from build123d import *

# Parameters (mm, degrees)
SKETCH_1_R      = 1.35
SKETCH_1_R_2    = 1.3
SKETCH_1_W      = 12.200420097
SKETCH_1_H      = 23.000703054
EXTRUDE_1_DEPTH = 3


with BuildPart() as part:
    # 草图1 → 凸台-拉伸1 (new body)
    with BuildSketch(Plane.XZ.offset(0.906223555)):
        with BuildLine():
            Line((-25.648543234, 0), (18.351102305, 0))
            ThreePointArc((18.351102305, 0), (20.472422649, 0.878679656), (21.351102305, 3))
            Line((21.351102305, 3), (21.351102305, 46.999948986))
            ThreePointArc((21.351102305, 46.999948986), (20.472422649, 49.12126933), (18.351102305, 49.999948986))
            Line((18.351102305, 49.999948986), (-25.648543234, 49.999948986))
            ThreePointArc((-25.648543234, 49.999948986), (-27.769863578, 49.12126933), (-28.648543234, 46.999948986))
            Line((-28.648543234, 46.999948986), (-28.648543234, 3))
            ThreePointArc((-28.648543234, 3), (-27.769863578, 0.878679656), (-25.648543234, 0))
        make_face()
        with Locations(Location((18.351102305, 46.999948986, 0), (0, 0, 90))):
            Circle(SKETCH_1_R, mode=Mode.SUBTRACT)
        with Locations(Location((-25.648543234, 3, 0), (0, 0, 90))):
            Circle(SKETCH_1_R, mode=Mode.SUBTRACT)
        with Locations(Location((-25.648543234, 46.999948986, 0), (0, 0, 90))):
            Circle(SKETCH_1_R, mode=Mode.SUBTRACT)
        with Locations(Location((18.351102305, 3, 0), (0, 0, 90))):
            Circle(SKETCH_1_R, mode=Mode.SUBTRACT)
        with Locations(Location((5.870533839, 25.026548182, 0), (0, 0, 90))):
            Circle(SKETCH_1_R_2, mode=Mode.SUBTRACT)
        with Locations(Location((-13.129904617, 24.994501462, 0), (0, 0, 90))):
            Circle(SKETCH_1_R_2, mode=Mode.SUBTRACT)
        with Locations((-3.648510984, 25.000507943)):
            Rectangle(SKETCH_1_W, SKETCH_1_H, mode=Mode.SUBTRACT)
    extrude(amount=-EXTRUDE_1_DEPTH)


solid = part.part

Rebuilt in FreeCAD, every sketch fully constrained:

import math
import FreeCAD as App
import Part
import Sketcher

V = App.Vector
Q = App.Units.Quantity


def add_polygon(sketch, points):
    """Adds a closed chain of lines whose ends are joined by coincident constraints."""
    first, n = sketch.GeometryCount, len(points)
    for a, b in zip(points, points[1:] + points[:1]):
        sketch.addGeometry(Part.LineSegment(App.Vector(*a, 0), App.Vector(*b, 0)), False)
    for i in range(n):
        sketch.addConstraint(Sketcher.Constraint("Coincident", first + i, 2, first + (i + 1) % n, 1))

doc = App.newDocument("Part")
params = doc.addObject("Spreadsheet::Sheet", "Params")
for row, (alias, value) in enumerate([
    ("sketch1_radius", "3 mm"),
    ("sketch1_diameter", "2.7 mm"),
    ("sketch1_diameter2", "2.6 mm"),
    ("pad1_length", "3 mm"),
], start=1):
    params.set(f"A{row}", alias)
    params.set(f"B{row}", "=" + value)
    params.setAlias(f"B{row}", alias)

body = doc.addObject("PartDesign::Body", "Body")

sketch1 = body.newObject("Sketcher::SketchObject", "Sketch")
sketch1.AttachmentSupport = (doc.getObject("XZ_Plane"), [""])
sketch1.MapMode = "FlatFace"
sketch1.AttachmentOffset = App.Placement(V(0, 0, 0.906224), App.Rotation())
sketch1.addGeometry(Part.LineSegment(V(-25.648543, 0, 0), V(18.351102, 0, 0)), False)
sketch1.addGeometry(Part.ArcOfCircle(Part.Circle(V(18.351102, 3, 0), V(0, 0, 1), 3), math.radians(-90), math.radians(0)), False)
sketch1.addGeometry(Part.LineSegment(V(21.351102, 3, 0), V(21.351102, 46.999949, 0)), False)
sketch1.addGeometry(Part.ArcOfCircle(Part.Circle(V(18.351102, 46.999949, 0), V(0, 0, 1), 3), math.radians(0), math.radians(90)), False)
sketch1.addGeometry(Part.LineSegment(V(18.351102, 49.999949, 0), V(-25.648543, 49.999949, 0)), False)
sketch1.addGeometry(Part.ArcOfCircle(Part.Circle(V(-25.648543, 46.999949, 0), V(0, 0, 1), 3), math.radians(90), math.radians(180)), False)
sketch1.addGeometry(Part.LineSegment(V(-28.648543, 46.999949, 0), V(-28.648543, 3, 0)), False)
sketch1.addGeometry(Part.ArcOfCircle(Part.Circle(V(-25.648543, 3, 0), V(0, 0, 1), 3), math.radians(180), math.radians(270)), False)
sketch1.addGeometry(Part.Circle(V(-25.648543, 3, 0), V(0, 0, 1), 1.35), False)
sketch1.addGeometry(Part.Circle(V(-13.129905, 24.994501, 0), V(0, 0, 1), 1.3), False)
sketch1.addGeometry(Part.Circle(V(18.351102, 3, 0), V(0, 0, 1), 1.35), False)
sketch1.addGeometry(Part.Circle(V(-25.648543, 46.999949, 0), V(0, 0, 1), 1.35), False)
add_polygon(sketch1, [(2.451699, 13.500156), (-9.748721, 13.500156), (-9.748721, 36.500859), (2.451699, 36.500859)])
sketch1.addGeometry(Part.Circle(V(5.870534, 25.026548, 0), V(0, 0, 1), 1.3), False)
sketch1.addGeometry(Part.Circle(V(18.351102, 46.999949, 0), V(0, 0, 1), 1.35), False)
sketch1.addConstraint([
    Sketcher.Constraint("Tangent", 0, 2, 1, 1),
    Sketcher.Constraint("Tangent", 1, 2, 2, 1),
    Sketcher.Constraint("Tangent", 2, 2, 3, 1),
    Sketcher.Constraint("Tangent", 3, 2, 4, 1),
    Sketcher.Constraint("Tangent", 4, 2, 5, 1),
    Sketcher.Constraint("Tangent", 5, 2, 6, 1),
    Sketcher.Constraint("Tangent", 6, 2, 7, 1),
    Sketcher.Constraint("Tangent", 7, 2, 0, 1),
    Sketcher.Constraint("Horizontal", 0),
    Sketcher.Constraint("Vertical", 2),
    Sketcher.Constraint("Horizontal", 4),
    Sketcher.Constraint("Vertical", 6),
    Sketcher.Constraint("Horizontal", 12),
    Sketcher.Constraint("Vertical", 13),
    Sketcher.Constraint("Horizontal", 14),
    Sketcher.Constraint("Vertical", 15),
    Sketcher.Constraint("Coincident", 8, 3, 7, 3),
    Sketcher.Constraint("Coincident", 10, 3, 1, 3),
    Sketcher.Constraint("Coincident", 11, 3, 5, 3),
    Sketcher.Constraint("Coincident", 17, 3, 3, 3),
    Sketcher.Constraint("Equal", 1, 3),
    Sketcher.Constraint("Equal", 3, 5),
    Sketcher.Constraint("Equal", 5, 7),
    Sketcher.Constraint("Equal", 8, 10),
    Sketcher.Constraint("Equal", 10, 11),
    Sketcher.Constraint("Equal", 9, 16),
    Sketcher.Constraint("Equal", 11, 17),
    Sketcher.Constraint("PointOnObject", 0, 2, -1),
    Sketcher.Constraint("Radius", 1, Q("3 mm")),
    Sketcher.Constraint("Diameter", 8, Q("2.7 mm")),
    Sketcher.Constraint("Diameter", 9, Q("2.6 mm")),
    Sketcher.Constraint("DistanceX", 12, 2, 12, 1, Q("12.20042 mm")),
    Sketcher.Constraint("DistanceY", 2, 1, 2, 2, Q("43.999949 mm")),
    Sketcher.Constraint("DistanceY", -1, 1, 9, 3, Q("24.994501 mm")),
    Sketcher.Constraint("DistanceX", -1, 1, 14, 2, Q("2.451699 mm")),
    Sketcher.Constraint("DistanceY", 16, 3, 3, 3, Q("21.973401 mm")),
    Sketcher.Constraint("DistanceX", 0, 1, 0, 2, Q("43.999646 mm")),
    Sketcher.Constraint("DistanceY", 13, 1, 13, 2, Q("23.000703 mm")),
    Sketcher.Constraint("DistanceY", -1, 1, 13, 2, Q("36.500859 mm")),
    Sketcher.Constraint("DistanceX", 8, 3, 9, 3, Q("12.518639 mm")),
    Sketcher.Constraint("DistanceX", 9, 3, 16, 3, Q("19.000438 mm")),
    Sketcher.Constraint("DistanceX", -1, 1, 1, 3, Q("18.351102 mm")),
])
sketch1.setExpression("Constraints[32]", "Params.sketch1_radius")
sketch1.setExpression("Constraints[33]", "Params.sketch1_diameter")
sketch1.setExpression("Constraints[34]", "Params.sketch1_diameter2")
pad1 = body.newObject("PartDesign::Pad", "Pad")
pad1.Profile = sketch1
pad1.setExpression("Length", "Params.pad1_length")
pad1.Reversed = True

doc.recompute()
